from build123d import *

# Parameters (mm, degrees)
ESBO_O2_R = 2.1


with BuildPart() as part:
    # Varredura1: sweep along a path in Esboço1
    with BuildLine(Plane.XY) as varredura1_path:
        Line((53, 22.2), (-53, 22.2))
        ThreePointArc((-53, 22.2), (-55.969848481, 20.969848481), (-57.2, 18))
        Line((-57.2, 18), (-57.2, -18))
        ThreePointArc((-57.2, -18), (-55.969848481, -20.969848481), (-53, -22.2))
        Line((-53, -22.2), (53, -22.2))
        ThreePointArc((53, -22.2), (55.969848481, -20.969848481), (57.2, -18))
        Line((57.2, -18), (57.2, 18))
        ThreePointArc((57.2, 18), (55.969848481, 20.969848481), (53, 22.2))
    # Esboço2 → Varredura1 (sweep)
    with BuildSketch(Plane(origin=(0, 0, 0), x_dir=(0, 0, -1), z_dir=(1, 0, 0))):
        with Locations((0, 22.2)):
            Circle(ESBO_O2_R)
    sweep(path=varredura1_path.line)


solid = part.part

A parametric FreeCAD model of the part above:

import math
import FreeCAD as App
import Part
import Sketcher

doc = App.newDocument("Part")
body = doc.addObject("PartDesign::Body", "Body")

sketch1 = body.newObject("Sketcher::SketchObject", "Sketch")
sketch1.AttachmentSupport = (doc.getObject("YZ_Plane"), [""])
sketch1.MapMode = "FlatFace"
sketch1.addGeometry(Part.Circle(App.Vector(22.2, 0, 0), App.Vector(0, 0, 1), 2.1), False)
sketch1.addConstraint(Sketcher.Constraint("PointOnObject", 0, 3, -1))
sketch1.addConstraint(Sketcher.Constraint("Diameter", 0, 4.2))
sketch1.addConstraint(Sketcher.Constraint("DistanceX", -1, 1, 0, 3, 22.2))

sketch2 = body.newObject("Sketcher::SketchObject", "Sketch001")
sketch2.AttachmentSupport = (doc.getObject("XY_Plane"), [""])
sketch2.MapMode = "FlatFace"
sketch2.addGeometry(Part.LineSegment(App.Vector(53, 22.2, 0), App.Vector(-53, 22.2, 0)), False)
sketch2.addGeometry(Part.ArcOfCircle(Part.Circle(App.Vector(-53, 18, 0), App.Vector(0, 0, 1), 4.2), math.radians(90), math.radians(180)), False)
sketch2.addGeometry(Part.LineSegment(App.Vector(-57.2, 18, 0), App.Vector(-57.2, -18, 0)), False)
sketch2.addGeometry(Part.ArcOfCircle(Part.Circle(App.Vector(-53, -18, 0), App.Vector(0, 0, 1), 4.2), math.radians(180), math.radians(270)), False)
sketch2.addGeometry(Part.LineSegment(App.Vector(-53, -22.2, 0), App.Vector(53, -22.2, 0)), False)
sketch2.addGeometry(Part.ArcOfCircle(Part.Circle(App.Vector(53, -18, 0), App.Vector(0, 0, 1), 4.2), math.radians(-90), math.radians(0)), False)
sketch2.addGeometry(Part.LineSegment(App.Vector(57.2, -18, 0), App.Vector(57.2, 18, 0)), False)
sketch2.addGeometry(Part.ArcOfCircle(Part.Circle(App.Vector(53, 18, 0), App.Vector(0, 0, 1), 4.2), math.radians(0), math.radians(90)), False)
sketch2.addConstraint(Sketcher.Constraint("Tangent", 0, 2, 1, 1))
sketch2.addConstraint(Sketcher.Constraint("Tangent", 1, 2, 2, 1))
sketch2.addConstraint(Sketcher.Constraint("Tangent", 2, 2, 3, 1))
sketch2.addConstraint(Sketcher.Constraint("Tangent", 3, 2, 4, 1))
sketch2.addConstraint(Sketcher.Constraint("Tangent", 4, 2, 5, 1))
sketch2.addConstraint(Sketcher.Constraint("Tangent", 5, 2, 6, 1))
sketch2.addConstraint(Sketcher.Constraint("Tangent", 6, 2, 7, 1))
sketch2.addConstraint(Sketcher.Constraint("Tangent", 7, 2, 0, 1))
sketch2.addConstraint(Sketcher.Constraint("Horizontal", 0))
sketch2.addConstraint(Sketcher.Constraint("Vertical", 2))
sketch2.addConstraint(Sketcher.Constraint("Horizontal", 4))
sketch2.addConstraint(Sketcher.Constraint("Vertical", 6))
sketch2.addConstraint(Sketcher.Constraint("Equal", 1, 3))
sketch2.addConstraint(Sketcher.Constraint("Equal", 3, 5))
sketch2.addConstraint(Sketcher.Constraint("Equal", 5, 7))
sketch2.addConstraint(Sketcher.Constraint("Symmetric", 1, 3, 5, 3, -1, 1))
sketch2.addConstraint(Sketcher.Constraint("Radius", 1, 4.2))
sketch2.addConstraint(Sketcher.Constraint("DistanceX", 0, 2, 0, 1, 106.0))
sketch2.addConstraint(Sketcher.Constraint("DistanceY", 2, 2, 2, 1, 36.0))
doc.recompute()

additivepipe = body.newObject("PartDesign::AdditivePipe", "AdditivePipe")
additivepipe.Profile = sketch1
additivepipe.Spine = (sketch2, ["Edge1", "Edge2", "Edge3", "Edge4", "Edge5", "Edge6", "Edge7", "Edge8"])

doc.recompute()
